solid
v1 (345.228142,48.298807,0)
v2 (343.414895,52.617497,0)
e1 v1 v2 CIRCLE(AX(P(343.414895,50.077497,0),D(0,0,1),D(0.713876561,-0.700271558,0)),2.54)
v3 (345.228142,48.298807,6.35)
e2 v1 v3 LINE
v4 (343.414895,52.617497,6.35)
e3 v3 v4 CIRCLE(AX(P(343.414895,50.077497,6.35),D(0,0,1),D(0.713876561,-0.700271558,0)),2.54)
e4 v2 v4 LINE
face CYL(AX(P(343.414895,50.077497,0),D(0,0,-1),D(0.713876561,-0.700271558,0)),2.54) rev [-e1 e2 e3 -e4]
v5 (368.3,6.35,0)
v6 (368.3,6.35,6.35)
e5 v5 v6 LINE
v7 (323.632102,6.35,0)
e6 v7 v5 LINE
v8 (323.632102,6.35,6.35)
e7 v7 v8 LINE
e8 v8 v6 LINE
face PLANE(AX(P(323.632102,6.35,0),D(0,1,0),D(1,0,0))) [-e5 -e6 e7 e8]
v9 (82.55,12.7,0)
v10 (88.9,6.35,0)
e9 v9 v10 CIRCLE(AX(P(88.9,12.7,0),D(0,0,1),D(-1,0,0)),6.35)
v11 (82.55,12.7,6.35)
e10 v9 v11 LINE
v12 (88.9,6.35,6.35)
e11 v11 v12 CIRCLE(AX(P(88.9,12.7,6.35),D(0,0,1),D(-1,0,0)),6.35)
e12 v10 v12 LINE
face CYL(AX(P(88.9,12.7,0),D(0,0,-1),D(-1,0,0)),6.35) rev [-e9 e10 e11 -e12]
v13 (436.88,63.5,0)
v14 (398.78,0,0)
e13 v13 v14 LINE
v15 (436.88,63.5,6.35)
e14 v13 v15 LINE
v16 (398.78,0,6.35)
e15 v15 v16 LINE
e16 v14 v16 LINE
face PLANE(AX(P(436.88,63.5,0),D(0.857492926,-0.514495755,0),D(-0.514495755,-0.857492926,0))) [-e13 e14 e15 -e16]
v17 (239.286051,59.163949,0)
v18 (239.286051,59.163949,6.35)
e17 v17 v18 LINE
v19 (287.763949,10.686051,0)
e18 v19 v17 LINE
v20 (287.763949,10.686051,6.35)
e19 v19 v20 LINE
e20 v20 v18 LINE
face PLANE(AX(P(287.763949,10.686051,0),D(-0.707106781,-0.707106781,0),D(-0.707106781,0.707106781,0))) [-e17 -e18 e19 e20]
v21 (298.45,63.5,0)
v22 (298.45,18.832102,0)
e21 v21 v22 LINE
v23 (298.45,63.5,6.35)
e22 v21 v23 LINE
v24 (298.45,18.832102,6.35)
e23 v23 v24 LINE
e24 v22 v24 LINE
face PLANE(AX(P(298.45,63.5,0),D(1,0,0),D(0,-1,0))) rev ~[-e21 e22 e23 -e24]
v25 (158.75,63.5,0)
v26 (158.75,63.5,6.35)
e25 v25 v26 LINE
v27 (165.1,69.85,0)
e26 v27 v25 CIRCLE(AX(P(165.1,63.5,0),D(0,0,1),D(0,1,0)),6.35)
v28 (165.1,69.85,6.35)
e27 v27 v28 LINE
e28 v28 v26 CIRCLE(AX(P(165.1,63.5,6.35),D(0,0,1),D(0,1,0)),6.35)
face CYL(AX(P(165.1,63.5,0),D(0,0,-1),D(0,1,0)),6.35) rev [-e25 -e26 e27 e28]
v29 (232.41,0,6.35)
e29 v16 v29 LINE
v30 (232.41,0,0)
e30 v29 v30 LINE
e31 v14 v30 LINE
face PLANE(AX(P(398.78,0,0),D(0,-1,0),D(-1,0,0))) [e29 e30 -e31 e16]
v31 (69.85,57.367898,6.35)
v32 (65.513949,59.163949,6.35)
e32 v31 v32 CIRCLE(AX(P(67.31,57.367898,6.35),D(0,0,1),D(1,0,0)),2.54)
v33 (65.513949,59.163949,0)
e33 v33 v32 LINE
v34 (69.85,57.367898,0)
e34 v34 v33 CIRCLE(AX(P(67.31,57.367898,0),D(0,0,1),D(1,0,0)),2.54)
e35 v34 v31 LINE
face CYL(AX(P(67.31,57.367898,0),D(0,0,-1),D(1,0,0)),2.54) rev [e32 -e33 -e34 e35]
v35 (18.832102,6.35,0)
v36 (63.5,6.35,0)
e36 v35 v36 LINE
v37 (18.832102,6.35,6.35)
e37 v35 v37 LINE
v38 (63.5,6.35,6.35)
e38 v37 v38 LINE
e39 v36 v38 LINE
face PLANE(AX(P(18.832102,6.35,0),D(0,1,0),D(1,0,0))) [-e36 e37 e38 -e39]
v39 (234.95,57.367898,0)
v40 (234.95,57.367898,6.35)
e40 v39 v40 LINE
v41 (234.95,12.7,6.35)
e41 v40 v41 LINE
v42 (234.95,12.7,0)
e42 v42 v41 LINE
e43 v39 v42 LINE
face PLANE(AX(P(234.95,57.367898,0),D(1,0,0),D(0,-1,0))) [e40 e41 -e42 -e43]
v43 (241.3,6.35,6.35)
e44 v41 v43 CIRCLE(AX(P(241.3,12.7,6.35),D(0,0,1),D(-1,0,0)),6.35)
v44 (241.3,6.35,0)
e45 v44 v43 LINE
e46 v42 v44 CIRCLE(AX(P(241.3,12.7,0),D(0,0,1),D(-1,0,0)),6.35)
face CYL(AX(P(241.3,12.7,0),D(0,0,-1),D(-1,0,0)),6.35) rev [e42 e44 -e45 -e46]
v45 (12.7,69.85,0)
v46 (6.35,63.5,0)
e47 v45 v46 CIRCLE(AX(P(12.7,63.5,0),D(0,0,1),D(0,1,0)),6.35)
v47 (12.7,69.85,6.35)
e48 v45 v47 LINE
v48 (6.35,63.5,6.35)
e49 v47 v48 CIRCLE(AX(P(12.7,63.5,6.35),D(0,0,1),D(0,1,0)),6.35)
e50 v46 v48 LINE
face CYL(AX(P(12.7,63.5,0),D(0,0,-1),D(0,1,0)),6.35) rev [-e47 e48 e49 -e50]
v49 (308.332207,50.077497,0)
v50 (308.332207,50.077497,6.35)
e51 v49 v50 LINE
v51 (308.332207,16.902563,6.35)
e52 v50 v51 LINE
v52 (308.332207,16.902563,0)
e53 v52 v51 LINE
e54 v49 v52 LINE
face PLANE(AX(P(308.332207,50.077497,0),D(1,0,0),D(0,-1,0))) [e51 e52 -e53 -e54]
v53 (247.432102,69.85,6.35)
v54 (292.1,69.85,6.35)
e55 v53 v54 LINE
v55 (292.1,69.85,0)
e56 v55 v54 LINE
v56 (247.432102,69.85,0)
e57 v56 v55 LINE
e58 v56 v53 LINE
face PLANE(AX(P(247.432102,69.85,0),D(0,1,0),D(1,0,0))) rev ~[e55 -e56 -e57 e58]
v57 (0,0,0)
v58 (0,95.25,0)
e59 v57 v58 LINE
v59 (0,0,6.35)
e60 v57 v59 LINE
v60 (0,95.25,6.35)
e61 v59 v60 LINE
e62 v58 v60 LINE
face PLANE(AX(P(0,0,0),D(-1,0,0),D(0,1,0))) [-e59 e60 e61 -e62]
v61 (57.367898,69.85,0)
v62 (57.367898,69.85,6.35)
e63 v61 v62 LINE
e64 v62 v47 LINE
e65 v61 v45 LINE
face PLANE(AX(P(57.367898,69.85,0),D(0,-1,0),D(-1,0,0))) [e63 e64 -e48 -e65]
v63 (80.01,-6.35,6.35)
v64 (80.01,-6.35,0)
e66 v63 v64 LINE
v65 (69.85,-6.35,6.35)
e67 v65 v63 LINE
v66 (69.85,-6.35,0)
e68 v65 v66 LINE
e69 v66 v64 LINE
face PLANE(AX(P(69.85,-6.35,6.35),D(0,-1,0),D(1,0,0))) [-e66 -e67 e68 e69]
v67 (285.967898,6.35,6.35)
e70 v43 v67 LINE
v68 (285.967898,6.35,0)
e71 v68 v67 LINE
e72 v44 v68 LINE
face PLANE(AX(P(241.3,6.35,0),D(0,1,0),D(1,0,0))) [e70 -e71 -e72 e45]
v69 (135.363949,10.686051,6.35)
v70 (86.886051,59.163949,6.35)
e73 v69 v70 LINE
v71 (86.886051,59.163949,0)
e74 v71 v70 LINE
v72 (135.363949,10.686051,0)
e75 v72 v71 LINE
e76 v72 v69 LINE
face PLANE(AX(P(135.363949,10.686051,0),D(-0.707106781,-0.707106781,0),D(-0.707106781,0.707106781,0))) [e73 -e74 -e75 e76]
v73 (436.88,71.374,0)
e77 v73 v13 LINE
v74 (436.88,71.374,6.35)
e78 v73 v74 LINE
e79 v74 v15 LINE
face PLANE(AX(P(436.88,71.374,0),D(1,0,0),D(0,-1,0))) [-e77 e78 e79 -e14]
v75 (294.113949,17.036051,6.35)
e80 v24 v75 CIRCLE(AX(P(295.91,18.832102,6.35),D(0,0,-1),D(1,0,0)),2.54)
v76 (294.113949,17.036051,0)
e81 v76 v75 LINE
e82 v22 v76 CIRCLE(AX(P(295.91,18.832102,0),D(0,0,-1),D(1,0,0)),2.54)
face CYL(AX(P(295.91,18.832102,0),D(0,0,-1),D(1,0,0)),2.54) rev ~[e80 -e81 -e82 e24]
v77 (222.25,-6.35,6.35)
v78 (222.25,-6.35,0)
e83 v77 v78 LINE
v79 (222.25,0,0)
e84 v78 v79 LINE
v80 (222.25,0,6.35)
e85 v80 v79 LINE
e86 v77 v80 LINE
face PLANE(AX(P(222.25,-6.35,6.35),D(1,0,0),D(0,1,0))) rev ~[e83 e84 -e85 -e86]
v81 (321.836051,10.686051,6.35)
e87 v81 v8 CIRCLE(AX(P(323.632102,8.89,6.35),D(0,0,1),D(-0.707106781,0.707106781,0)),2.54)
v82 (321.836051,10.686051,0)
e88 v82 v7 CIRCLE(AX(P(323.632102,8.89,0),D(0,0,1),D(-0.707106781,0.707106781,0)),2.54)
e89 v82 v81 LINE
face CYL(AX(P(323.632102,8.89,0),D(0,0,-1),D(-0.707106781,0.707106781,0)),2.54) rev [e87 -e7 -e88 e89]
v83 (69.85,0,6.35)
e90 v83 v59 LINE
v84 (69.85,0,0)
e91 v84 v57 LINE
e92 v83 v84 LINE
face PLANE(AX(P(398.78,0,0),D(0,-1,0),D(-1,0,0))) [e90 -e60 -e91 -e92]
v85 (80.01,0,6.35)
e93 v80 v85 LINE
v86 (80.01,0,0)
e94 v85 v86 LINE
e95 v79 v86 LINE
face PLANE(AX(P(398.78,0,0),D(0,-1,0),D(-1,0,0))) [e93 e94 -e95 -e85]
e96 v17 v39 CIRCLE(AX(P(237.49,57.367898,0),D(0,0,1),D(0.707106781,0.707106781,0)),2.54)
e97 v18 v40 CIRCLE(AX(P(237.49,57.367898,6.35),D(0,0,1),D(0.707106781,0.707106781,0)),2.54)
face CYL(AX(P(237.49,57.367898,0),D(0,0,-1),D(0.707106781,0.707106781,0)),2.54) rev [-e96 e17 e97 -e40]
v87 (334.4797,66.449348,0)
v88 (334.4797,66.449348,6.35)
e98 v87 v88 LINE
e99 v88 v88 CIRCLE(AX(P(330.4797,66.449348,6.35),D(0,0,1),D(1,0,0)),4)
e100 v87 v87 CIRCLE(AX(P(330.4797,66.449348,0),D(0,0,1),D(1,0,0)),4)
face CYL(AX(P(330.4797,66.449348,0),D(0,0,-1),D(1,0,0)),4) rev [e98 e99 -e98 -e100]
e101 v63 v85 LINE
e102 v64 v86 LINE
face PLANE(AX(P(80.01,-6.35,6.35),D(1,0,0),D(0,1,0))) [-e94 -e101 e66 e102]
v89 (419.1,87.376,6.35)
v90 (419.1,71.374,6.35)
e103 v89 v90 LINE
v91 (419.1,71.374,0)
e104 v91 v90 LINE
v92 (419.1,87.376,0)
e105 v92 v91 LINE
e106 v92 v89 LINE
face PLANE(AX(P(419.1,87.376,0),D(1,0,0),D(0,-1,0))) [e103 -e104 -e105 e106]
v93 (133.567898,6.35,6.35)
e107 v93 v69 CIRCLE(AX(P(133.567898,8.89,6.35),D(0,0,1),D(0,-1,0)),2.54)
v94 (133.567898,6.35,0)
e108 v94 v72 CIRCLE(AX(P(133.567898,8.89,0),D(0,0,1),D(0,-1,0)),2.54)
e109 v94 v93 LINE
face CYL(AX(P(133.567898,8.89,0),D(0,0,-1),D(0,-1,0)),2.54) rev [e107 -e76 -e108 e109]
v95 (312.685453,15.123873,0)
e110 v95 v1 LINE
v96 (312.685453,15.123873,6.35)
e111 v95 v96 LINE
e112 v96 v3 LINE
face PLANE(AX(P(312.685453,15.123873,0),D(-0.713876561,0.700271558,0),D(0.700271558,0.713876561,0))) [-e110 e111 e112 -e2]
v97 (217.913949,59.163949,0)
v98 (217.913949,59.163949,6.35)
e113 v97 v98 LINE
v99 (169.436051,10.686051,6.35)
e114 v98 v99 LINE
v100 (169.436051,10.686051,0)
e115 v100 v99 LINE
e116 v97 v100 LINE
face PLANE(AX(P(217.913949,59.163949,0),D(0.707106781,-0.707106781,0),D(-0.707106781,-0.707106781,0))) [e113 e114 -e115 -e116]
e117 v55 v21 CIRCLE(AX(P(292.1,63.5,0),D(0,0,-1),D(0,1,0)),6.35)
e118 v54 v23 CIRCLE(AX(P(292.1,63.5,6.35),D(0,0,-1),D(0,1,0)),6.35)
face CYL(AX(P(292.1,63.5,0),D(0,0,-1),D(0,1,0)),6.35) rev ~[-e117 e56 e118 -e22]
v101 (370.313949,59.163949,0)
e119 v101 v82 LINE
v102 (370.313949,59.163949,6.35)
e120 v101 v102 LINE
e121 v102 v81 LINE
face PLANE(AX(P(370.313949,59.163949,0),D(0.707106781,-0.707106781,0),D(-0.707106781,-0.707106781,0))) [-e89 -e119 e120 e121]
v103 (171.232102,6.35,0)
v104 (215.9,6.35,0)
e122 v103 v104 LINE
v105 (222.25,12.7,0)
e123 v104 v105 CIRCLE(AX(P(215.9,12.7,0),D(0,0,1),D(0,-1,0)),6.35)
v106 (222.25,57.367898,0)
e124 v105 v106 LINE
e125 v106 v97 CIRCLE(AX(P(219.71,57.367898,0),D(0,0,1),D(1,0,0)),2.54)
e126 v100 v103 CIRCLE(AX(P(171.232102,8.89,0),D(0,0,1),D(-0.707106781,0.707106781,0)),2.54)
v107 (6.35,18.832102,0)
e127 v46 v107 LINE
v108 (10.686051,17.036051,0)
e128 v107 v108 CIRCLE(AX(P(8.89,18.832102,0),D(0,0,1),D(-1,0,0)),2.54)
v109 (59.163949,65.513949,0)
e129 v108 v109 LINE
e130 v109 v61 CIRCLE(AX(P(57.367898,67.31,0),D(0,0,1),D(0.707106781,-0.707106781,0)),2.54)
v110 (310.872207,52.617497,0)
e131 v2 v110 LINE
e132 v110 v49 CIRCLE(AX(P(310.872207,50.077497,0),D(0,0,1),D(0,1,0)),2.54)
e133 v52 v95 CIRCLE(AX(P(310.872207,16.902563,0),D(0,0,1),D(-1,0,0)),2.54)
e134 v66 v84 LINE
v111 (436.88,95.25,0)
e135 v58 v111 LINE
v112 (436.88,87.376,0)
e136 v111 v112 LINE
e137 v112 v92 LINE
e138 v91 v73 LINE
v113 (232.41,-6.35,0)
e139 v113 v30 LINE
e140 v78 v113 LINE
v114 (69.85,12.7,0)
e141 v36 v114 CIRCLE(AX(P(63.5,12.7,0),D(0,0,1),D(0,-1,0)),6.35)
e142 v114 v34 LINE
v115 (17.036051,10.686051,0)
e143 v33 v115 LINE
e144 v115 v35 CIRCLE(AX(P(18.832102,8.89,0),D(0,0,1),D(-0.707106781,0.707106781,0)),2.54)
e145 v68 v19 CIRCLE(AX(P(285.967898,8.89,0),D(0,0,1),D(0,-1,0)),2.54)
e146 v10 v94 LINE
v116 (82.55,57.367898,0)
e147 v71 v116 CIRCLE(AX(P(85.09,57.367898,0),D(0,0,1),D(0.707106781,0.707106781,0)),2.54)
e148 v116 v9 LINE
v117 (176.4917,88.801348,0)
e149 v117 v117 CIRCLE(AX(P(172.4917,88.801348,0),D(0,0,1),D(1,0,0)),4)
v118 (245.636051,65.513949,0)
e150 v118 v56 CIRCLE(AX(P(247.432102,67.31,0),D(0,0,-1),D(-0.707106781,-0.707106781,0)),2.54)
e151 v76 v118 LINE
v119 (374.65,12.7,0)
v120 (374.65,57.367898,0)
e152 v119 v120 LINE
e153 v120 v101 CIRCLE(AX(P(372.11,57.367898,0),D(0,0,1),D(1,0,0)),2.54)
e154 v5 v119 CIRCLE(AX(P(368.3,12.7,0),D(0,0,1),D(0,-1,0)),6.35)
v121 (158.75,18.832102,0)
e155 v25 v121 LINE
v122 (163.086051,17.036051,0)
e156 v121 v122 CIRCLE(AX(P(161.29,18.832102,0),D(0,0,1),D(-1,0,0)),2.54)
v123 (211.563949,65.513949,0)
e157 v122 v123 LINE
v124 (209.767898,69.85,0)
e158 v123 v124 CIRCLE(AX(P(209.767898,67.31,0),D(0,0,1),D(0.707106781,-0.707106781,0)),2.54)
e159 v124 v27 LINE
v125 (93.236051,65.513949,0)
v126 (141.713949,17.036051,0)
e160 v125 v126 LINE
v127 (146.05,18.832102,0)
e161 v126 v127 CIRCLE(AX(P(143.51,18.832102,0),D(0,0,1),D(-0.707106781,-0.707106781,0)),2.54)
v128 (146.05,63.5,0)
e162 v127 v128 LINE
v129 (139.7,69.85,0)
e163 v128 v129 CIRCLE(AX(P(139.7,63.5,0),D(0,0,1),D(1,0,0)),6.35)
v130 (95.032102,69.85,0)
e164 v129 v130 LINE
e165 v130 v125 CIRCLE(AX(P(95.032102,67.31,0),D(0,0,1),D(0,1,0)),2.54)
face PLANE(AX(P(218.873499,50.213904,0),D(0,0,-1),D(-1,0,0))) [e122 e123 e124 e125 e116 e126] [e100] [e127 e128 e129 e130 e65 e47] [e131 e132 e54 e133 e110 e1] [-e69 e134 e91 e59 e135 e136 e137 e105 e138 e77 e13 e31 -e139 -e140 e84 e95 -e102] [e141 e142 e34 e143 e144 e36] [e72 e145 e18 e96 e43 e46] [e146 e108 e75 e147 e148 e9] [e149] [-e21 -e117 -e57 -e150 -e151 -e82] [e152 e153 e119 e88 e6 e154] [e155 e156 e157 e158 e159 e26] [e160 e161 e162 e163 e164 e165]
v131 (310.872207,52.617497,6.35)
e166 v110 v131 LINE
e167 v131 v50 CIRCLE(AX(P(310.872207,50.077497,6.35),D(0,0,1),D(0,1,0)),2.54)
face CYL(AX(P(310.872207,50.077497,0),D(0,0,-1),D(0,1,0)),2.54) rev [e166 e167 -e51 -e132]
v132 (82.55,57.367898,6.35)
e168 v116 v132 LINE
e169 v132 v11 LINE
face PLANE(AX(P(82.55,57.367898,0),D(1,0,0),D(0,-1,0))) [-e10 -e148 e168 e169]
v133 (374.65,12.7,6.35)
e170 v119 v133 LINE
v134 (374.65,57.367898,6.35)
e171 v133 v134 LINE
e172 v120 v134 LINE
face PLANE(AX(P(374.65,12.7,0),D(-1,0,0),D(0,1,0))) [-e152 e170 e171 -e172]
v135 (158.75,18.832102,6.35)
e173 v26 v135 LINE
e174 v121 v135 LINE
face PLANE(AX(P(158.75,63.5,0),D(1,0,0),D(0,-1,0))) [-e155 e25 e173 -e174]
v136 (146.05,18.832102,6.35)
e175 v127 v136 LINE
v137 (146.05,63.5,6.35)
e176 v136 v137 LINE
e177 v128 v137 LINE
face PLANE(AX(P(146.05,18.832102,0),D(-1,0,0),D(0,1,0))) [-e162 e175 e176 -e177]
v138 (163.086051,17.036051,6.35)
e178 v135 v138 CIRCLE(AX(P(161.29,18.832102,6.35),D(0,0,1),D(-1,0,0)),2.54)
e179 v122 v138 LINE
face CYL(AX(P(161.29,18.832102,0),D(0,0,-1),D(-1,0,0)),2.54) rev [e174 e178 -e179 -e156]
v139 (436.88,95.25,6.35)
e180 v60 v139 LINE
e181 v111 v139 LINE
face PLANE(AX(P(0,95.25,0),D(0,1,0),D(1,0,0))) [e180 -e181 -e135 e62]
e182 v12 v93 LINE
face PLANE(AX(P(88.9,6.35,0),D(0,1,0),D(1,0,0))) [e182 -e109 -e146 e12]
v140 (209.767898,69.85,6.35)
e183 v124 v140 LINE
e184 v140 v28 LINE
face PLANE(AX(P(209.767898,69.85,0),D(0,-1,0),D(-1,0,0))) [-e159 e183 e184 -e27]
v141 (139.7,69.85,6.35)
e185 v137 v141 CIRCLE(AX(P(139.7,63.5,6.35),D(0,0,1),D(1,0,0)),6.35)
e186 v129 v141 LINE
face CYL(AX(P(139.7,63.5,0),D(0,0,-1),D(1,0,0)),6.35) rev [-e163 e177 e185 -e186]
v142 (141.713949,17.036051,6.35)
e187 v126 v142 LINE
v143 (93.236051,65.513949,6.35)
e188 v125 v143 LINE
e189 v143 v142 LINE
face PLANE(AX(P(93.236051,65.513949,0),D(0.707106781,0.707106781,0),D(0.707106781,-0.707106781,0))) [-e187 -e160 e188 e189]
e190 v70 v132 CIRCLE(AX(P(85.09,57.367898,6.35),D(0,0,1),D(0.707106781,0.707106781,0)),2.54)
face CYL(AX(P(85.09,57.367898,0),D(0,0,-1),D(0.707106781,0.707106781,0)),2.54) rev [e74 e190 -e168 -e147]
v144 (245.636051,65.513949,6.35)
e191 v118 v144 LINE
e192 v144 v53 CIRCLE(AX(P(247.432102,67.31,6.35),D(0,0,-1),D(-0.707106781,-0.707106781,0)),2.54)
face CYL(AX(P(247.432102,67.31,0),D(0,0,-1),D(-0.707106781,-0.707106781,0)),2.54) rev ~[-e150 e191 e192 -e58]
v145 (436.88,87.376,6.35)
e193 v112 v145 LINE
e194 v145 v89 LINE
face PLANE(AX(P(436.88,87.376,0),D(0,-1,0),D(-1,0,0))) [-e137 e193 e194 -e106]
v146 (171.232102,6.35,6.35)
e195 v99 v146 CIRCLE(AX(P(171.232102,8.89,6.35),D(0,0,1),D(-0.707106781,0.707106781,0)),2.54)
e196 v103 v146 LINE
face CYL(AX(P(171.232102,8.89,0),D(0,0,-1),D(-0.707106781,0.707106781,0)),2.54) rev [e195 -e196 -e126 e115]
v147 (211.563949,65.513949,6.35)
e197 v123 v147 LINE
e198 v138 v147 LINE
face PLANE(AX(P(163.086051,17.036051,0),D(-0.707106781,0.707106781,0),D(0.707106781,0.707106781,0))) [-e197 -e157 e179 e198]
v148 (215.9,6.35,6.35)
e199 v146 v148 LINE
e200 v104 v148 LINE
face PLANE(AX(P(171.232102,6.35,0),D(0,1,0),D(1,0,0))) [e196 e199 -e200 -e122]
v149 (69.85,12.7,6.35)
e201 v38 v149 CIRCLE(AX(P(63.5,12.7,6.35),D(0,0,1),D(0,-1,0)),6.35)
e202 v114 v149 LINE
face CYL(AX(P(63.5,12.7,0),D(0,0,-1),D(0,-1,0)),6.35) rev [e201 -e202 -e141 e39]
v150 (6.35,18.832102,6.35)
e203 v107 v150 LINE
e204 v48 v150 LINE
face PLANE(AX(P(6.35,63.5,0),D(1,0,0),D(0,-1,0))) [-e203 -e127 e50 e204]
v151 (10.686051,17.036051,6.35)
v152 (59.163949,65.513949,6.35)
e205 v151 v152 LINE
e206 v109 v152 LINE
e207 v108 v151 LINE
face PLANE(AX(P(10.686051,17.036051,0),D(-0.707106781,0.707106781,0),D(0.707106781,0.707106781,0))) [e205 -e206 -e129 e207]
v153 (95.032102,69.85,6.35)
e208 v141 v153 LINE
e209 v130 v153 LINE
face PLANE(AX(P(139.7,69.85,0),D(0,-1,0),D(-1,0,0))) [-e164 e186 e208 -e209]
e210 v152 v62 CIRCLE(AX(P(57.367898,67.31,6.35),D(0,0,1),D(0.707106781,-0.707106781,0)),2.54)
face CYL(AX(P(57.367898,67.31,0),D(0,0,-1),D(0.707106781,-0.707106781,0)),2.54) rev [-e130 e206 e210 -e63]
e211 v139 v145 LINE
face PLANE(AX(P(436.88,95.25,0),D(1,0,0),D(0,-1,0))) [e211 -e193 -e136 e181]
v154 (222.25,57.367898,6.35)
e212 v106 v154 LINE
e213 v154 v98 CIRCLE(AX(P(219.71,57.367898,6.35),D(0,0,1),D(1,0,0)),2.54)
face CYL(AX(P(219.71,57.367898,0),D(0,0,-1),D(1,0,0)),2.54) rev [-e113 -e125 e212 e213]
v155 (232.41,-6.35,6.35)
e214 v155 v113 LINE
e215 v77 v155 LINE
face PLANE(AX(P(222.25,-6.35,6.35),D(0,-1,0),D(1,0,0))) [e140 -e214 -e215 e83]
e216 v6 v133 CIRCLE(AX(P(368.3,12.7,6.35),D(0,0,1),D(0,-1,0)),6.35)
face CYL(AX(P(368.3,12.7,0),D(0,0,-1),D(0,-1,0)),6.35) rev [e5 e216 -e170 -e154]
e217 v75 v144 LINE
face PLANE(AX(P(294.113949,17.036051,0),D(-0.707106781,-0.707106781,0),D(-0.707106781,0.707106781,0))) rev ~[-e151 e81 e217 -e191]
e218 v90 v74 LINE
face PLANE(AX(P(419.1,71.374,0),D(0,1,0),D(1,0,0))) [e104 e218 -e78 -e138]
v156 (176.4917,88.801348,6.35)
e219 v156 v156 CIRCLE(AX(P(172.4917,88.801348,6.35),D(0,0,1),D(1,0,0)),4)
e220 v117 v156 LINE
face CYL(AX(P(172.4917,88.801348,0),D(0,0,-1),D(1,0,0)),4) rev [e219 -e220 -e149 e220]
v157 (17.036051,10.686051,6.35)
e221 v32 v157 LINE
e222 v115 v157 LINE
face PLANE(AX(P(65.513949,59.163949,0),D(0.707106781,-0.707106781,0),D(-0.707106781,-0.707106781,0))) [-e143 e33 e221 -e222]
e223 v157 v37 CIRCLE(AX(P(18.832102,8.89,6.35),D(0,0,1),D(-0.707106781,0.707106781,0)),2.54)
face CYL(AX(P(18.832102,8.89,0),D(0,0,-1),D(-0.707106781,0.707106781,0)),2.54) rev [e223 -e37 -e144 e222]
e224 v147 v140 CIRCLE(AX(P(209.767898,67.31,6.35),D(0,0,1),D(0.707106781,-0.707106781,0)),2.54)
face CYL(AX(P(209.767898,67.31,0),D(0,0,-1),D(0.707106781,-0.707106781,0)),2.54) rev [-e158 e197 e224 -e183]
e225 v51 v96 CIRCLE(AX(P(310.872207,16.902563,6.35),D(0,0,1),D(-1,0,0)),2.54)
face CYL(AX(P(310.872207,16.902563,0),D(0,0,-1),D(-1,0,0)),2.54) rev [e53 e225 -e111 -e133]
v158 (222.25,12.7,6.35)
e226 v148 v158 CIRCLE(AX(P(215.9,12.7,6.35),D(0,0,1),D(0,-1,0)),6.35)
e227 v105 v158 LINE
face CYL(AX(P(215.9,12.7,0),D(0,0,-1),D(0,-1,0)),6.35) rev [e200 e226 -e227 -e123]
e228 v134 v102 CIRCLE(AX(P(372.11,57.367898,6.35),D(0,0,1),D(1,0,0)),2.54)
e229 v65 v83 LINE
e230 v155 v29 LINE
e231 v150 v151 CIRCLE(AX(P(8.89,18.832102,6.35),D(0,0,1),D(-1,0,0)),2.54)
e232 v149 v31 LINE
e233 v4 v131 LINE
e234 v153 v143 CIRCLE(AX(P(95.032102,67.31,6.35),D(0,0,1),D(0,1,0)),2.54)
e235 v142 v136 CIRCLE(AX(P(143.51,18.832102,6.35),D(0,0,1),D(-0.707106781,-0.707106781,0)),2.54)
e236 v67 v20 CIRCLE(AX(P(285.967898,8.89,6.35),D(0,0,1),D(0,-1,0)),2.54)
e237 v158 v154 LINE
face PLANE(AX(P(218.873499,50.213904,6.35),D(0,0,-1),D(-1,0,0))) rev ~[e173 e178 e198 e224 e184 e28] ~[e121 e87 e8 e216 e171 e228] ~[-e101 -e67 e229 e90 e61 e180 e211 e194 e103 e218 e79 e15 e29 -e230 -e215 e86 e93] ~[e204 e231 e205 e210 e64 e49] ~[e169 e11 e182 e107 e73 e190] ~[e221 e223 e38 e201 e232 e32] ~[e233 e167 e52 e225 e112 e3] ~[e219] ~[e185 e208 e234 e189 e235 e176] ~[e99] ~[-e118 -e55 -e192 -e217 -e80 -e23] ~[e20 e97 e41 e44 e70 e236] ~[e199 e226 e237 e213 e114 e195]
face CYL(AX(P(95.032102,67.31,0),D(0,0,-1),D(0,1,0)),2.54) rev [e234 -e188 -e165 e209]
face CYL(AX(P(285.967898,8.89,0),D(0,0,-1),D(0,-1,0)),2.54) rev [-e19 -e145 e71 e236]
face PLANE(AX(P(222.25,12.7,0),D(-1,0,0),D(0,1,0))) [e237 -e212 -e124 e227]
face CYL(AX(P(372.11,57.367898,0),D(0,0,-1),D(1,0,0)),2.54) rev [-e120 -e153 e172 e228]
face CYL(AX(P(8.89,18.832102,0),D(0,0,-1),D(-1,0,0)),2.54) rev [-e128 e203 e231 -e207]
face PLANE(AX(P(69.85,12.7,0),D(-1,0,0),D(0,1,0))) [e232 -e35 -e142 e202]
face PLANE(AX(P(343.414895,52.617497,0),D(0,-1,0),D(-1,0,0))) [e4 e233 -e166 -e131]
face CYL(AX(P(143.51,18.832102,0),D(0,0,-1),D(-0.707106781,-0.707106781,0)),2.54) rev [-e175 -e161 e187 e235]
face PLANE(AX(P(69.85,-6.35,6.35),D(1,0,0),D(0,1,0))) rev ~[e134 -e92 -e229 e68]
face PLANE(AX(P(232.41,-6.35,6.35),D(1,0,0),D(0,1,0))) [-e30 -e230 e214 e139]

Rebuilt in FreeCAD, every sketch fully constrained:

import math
import FreeCAD as App
import Part
import Sketcher
from FreeCAD import Vector
Q = App.Units.Quantity

doc = App.newDocument("Part")
body = doc.addObject("PartDesign::Body", "Body")

# Sketch on XY plane
sketch1 = body.newObject("Sketcher::SketchObject", "Sketch")
sketch1.AttachmentSupport = (doc.getObject("XY_Plane"), [""])
sketch1.MapMode = "FlatFace"
sketch1.addGeometry(Part.LineSegment(Vector(419.1, 71.4, 0), Vector(419.1, 87.4, 0)), False)
sketch1.addGeometry(Part.LineSegment(Vector(419.1, 87.4, 0), Vector(436.9, 87.4, 0)), False)
sketch1.addGeometry(Part.LineSegment(Vector(436.9, 87.4, 0), Vector(436.9, 95.2, 0)), False)
sketch1.addGeometry(Part.LineSegment(Vector(436.9, 95.2, 0), Vector(0, 95.2, 0)), False)
sketch1.addGeometry(Part.LineSegment(Vector(0, 95.2, 0), Vector(0, 0, 0)), False)
sketch1.addGeometry(Part.LineSegment(Vector(0, 0, 0), Vector(398.8, 0, 0)), False)
sketch1.addGeometry(Part.LineSegment(Vector(398.8, 0, 0), Vector(436.9, 63.5, 0)), False)
sketch1.addGeometry(Part.LineSegment(Vector(436.9, 63.5, 0), Vector(436.9, 71.4, 0)), False)
sketch1.addGeometry(Part.LineSegment(Vector(436.9, 71.4, 0), Vector(419.1, 71.4, 0)), False)
sketch1.addGeometry(Part.ArcOfCircle(Part.Circle(Vector(323.6, 8.9, 0), Vector(0, 0, 1), 2.5), math.radians(135), math.radians(270)), False)
sketch1.addGeometry(Part.LineSegment(Vector(321.8, 10.7, 0), Vector(370.3, 59.2, 0)), False)
sketch1.addGeometry(Part.ArcOfCircle(Part.Circle(Vector(372.1, 57.4, 0), Vector(0, 0, 1), 2.5), math.radians(0), math.radians(135)), False)
sketch1.addGeometry(Part.LineSegment(Vector(374.6, 57.4, 0), Vector(374.6, 12.7, 0)), False)
sketch1.addGeometry(Part.ArcOfCircle(Part.Circle(Vector(368.3, 12.7, 0), Vector(0, 0, 1), 6.3), math.radians(-90), math.radians(0)), False)
sketch1.addGeometry(Part.LineSegment(Vector(368.3, 6.3, 0), Vector(323.6, 6.3, 0)), False)
sketch1.addGeometry(Part.ArcOfCircle(Part.Circle(Vector(310.9, 16.9, 0), Vector(0, 0, 1), 2.5), math.radians(-180), math.radians(-44)), False)
sketch1.addGeometry(Part.LineSegment(Vector(308.3, 16.9, 0), Vector(308.3, 50.1, 0)), False)
sketch1.addGeometry(Part.ArcOfCircle(Part.Circle(Vector(310.9, 50.1, 0), Vector(0, 0, 1), 2.5), math.radians(90), math.radians(180)), False)
sketch1.addGeometry(Part.LineSegment(Vector(310.9, 52.6, 0), Vector(343.4, 52.6, 0)), False)
sketch1.addGeometry(Part.ArcOfCircle(Part.Circle(Vector(343.4, 50.1, 0), Vector(0, 0, 1), 2.5), math.radians(-44), math.radians(90)), False)
sketch1.addGeometry(Part.LineSegment(Vector(345.2, 48.3, 0), Vector(312.7, 15.1, 0)), False)
sketch1.addGeometry(Part.ArcOfCircle(Part.Circle(Vector(237.5, 57.4, 0), Vector(0, 0, 1), 2.5), math.radians(45), math.radians(180)), False)
sketch1.addGeometry(Part.LineSegment(Vector(239.3, 59.2, 0), Vector(287.8, 10.7, 0)), False)
sketch1.addGeometry(Part.ArcOfCircle(Part.Circle(Vector(286, 8.9, 0), Vector(0, 0, 1), 2.5), math.radians(-90), math.radians(45)), False)
sketch1.addGeometry(Part.LineSegment(Vector(286, 6.3, 0), Vector(241.3, 6.3, 0)), False)
sketch1.addGeometry(Part.ArcOfCircle(Part.Circle(Vector(241.3, 12.7, 0), Vector(0, 0, 1), 6.3), math.radians(180), math.radians(270)), False)
sketch1.addGeometry(Part.LineSegment(Vector(234.9, 12.7, 0), Vector(234.9, 57.4, 0)), False)
sketch1.addGeometry(Part.ArcOfCircle(Part.Circle(Vector(171.2, 8.9, 0), Vector(0, 0, 1), 2.5), math.radians(135), math.radians(270)), False)
sketch1.addGeometry(Part.LineSegment(Vector(169.4, 10.7, 0), Vector(217.9, 59.2, 0)), False)
sketch1.addGeometry(Part.ArcOfCircle(Part.Circle(Vector(219.7, 57.4, 0), Vector(0, 0, 1), 2.5), math.radians(0), math.radians(135)), False)
sketch1.addGeometry(Part.LineSegment(Vector(222.2, 57.4, 0), Vector(222.2, 12.7, 0)), False)
sketch1.addGeometry(Part.ArcOfCircle(Part.Circle(Vector(215.9, 12.7, 0), Vector(0, 0, 1), 6.3), math.radians(-90), math.radians(0)), False)
sketch1.addGeometry(Part.LineSegment(Vector(215.9, 6.3, 0), Vector(171.2, 6.3, 0)), False)
sketch1.addGeometry(Part.LineSegment(Vector(294.1, 17, 0), Vector(245.6, 65.5, 0)), False)
sketch1.addGeometry(Part.ArcOfCircle(Part.Circle(Vector(247.4, 67.3, 0), Vector(0, 0, 1), 2.5), math.radians(90), math.radians(225)), False)
sketch1.addGeometry(Part.LineSegment(Vector(247.4, 69.8, 0), Vector(292.1, 69.8, 0)), False)
sketch1.addGeometry(Part.ArcOfCircle(Part.Circle(Vector(292.1, 63.5, 0), Vector(0, 0, 1), 6.3), math.radians(0), math.radians(90)), False)
sketch1.addGeometry(Part.LineSegment(Vector(298.4, 63.5, 0), Vector(298.4, 18.8, 0)), False)
sketch1.addGeometry(Part.ArcOfCircle(Part.Circle(Vector(295.9, 18.8, 0), Vector(0, 0, 1), 2.5), math.radians(-135), math.radians(0)), False)
sketch1.addGeometry(Part.ArcOfCircle(Part.Circle(Vector(85.1, 57.4, 0), Vector(0, 0, 1), 2.5), math.radians(45), math.radians(180)), False)
sketch1.addGeometry(Part.LineSegment(Vector(86.9, 59.2, 0), Vector(135.4, 10.7, 0)), False)
sketch1.addGeometry(Part.ArcOfCircle(Part.Circle(Vector(133.6, 8.9, 0), Vector(0, 0, 1), 2.5), math.radians(-90), math.radians(45)), False)
sketch1.addGeometry(Part.LineSegment(Vector(133.6, 6.3, 0), Vector(88.9, 6.3, 0)), False)
sketch1.addGeometry(Part.ArcOfCircle(Part.Circle(Vector(88.9, 12.7, 0), Vector(0, 0, 1), 6.3), math.radians(180), math.radians(270)), False)
sketch1.addGeometry(Part.LineSegment(Vector(82.5, 12.7, 0), Vector(82.5, 57.4, 0)), False)
sketch1.addGeometry(Part.ArcOfCircle(Part.Circle(Vector(161.3, 18.8, 0), Vector(0, 0, 1), 2.5), math.radians(180), math.radians(315)), False)
sketch1.addGeometry(Part.LineSegment(Vector(158.8, 18.8, 0), Vector(158.8, 63.5, 0)), False)
sketch1.addGeometry(Part.ArcOfCircle(Part.Circle(Vector(165.1, 63.5, 0), Vector(0, 0, 1), 6.3), math.radians(90), math.radians(180)), False)
sketch1.addGeometry(Part.LineSegment(Vector(165.1, 69.8, 0), Vector(209.8, 69.8, 0)), False)
sketch1.addGeometry(Part.ArcOfCircle(Part.Circle(Vector(209.8, 67.3, 0), Vector(0, 0, 1), 2.5), math.radians(-45), math.radians(90)), False)
sketch1.addGeometry(Part.LineSegment(Vector(211.6, 65.5, 0), Vector(163.1, 17, 0)), False)
sketch1.addGeometry(Part.ArcOfCircle(Part.Circle(Vector(95, 67.3, 0), Vector(0, 0, 1), 2.5), math.radians(90), math.radians(225)), False)
sketch1.addGeometry(Part.LineSegment(Vector(95, 69.8, 0), Vector(139.7, 69.8, 0)), False)
sketch1.addGeometry(Part.ArcOfCircle(Part.Circle(Vector(139.7, 63.5, 0), Vector(0, 0, 1), 6.3), math.radians(0), math.radians(90)), False)
sketch1.addGeometry(Part.LineSegment(Vector(146.1, 63.5, 0), Vector(146.1, 18.8, 0)), False)
sketch1.addGeometry(Part.ArcOfCircle(Part.Circle(Vector(143.5, 18.8, 0), Vector(0, 0, 1), 2.5), math.radians(-135), math.radians(0)), False)
sketch1.addGeometry(Part.LineSegment(Vector(141.7, 17, 0), Vector(93.2, 65.5, 0)), False)
sketch1.addGeometry(Part.ArcOfCircle(Part.Circle(Vector(18.8, 8.9, 0), Vector(0, 0, 1), 2.5), math.radians(135), math.radians(270)), False)
sketch1.addGeometry(Part.LineSegment(Vector(17, 10.7, 0), Vector(65.5, 59.2, 0)), False)
sketch1.addGeometry(Part.ArcOfCircle(Part.Circle(Vector(67.3, 57.4, 0), Vector(0, 0, 1), 2.5), math.radians(0), math.radians(135)), False)
sketch1.addGeometry(Part.LineSegment(Vector(69.8, 57.4, 0), Vector(69.8, 12.7, 0)), False)
sketch1.addGeometry(Part.ArcOfCircle(Part.Circle(Vector(63.5, 12.7, 0), Vector(0, 0, 1), 6.3), math.radians(-90), math.radians(0)), False)
sketch1.addGeometry(Part.LineSegment(Vector(63.5, 6.3, 0), Vector(18.8, 6.3, 0)), False)
sketch1.addGeometry(Part.ArcOfCircle(Part.Circle(Vector(12.7, 63.5, 0), Vector(0, 0, 1), 6.3), math.radians(90), math.radians(180)), False)
sketch1.addGeometry(Part.LineSegment(Vector(12.7, 69.8, 0), Vector(57.4, 69.8, 0)), False)
sketch1.addGeometry(Part.ArcOfCircle(Part.Circle(Vector(57.4, 67.3, 0), Vector(0, 0, 1), 2.5), math.radians(-45), math.radians(90)), False)
sketch1.addGeometry(Part.LineSegment(Vector(59.2, 65.5, 0), Vector(10.7, 17, 0)), False)
sketch1.addGeometry(Part.ArcOfCircle(Part.Circle(Vector(8.9, 18.8, 0), Vector(0, 0, 1), 2.5), math.radians(180), math.radians(315)), False)
sketch1.addGeometry(Part.LineSegment(Vector(6.3, 18.8, 0), Vector(6.3, 63.5, 0)), False)
sketch1.addGeometry(Part.Circle(Vector(330.5, 66.4, 0), Vector(0, 0, 1), 4), False)
sketch1.addGeometry(Part.Circle(Vector(172.5, 88.8, 0), Vector(0, 0, 1), 4), False)
sketch1.addConstraint(Sketcher.Constraint("Coincident", 0, 2, 1, 1))
sketch1.addConstraint(Sketcher.Constraint("Coincident", 1, 2, 2, 1))
sketch1.addConstraint(Sketcher.Constraint("Coincident", 2, 2, 3, 1))
sketch1.addConstraint(Sketcher.Constraint("Coincident", 3, 2, 4, 1))
sketch1.addConstraint(Sketcher.Constraint("Coincident", 4, 2, 5, 1))
sketch1.addConstraint(Sketcher.Constraint("Coincident", 5, 2, 6, 1))
sketch1.addConstraint(Sketcher.Constraint("Coincident", 6, 2, 7, 1))
sketch1.addConstraint(Sketcher.Constraint("Coincident", 7, 2, 8, 1))
sketch1.addConstraint(Sketcher.Constraint("Coincident", 8, 2, 0, 1))
sketch1.addConstraint(Sketcher.Constraint("Tangent", 9, 1, 10, 1))
sketch1.addConstraint(Sketcher.Constraint("Tangent", 10, 2, 11, 2))
sketch1.addConstraint(Sketcher.Constraint("Tangent", 11, 1, 12, 1))
sketch1.addConstraint(Sketcher.Constraint("Tangent", 12, 2, 13, 2))
sketch1.addConstraint(Sketcher.Constraint("Tangent", 13, 1, 14, 1))
sketch1.addConstraint(Sketcher.Constraint("Tangent", 14, 2, 9, 2))
sketch1.addConstraint(Sketcher.Constraint("Tangent", 15, 1, 16, 1))
sketch1.addConstraint(Sketcher.Constraint("Tangent", 16, 2, 17, 2))
sketch1.addConstraint(Sketcher.Constraint("Tangent", 17, 1, 18, 1))
sketch1.addConstraint(Sketcher.Constraint("Tangent", 18, 2, 19, 2))
sketch1.addConstraint(Sketcher.Constraint("Tangent", 19, 1, 20, 1))
sketch1.addConstraint(Sketcher.Constraint("Tangent", 20, 2, 15, 2))
sketch1.addConstraint(Sketcher.Constraint("Tangent", 21, 1, 22, 1))
sketch1.addConstraint(Sketcher.Constraint("Tangent", 22, 2, 23, 2))
sketch1.addConstraint(Sketcher.Constraint("Tangent", 23, 1, 24, 1))
sketch1.addConstraint(Sketcher.Constraint("Tangent", 24, 2, 25, 2))
sketch1.addConstraint(Sketcher.Constraint("Tangent", 25, 1, 26, 1))
sketch1.addConstraint(Sketcher.Constraint("Tangent", 26, 2, 21, 2))
sketch1.addConstraint(Sketcher.Constraint("Tangent", 27, 1, 28, 1))
sketch1.addConstraint(Sketcher.Constraint("Tangent", 28, 2, 29, 2))
sketch1.addConstraint(Sketcher.Constraint("Tangent", 29, 1, 30, 1))
sketch1.addConstraint(Sketcher.Constraint("Tangent", 30, 2, 31, 2))
sketch1.addConstraint(Sketcher.Constraint("Tangent", 31, 1, 32, 1))
sketch1.addConstraint(Sketcher.Constraint("Tangent", 32, 2, 27, 2))
sketch1.addConstraint(Sketcher.Constraint("Tangent", 33, 2, 34, 2))
sketch1.addConstraint(Sketcher.Constraint("Tangent", 34, 1, 35, 1))
sketch1.addConstraint(Sketcher.Constraint("Tangent", 35, 2, 36, 2))
sketch1.addConstraint(Sketcher.Constraint("Tangent", 36, 1, 37, 1))
sketch1.addConstraint(Sketcher.Constraint("Tangent", 37, 2, 38, 2))
sketch1.addConstraint(Sketcher.Constraint("Tangent", 38, 1, 33, 1))
sketch1.addConstraint(Sketcher.Constraint("Tangent", 39, 1, 40, 1))
sketch1.addConstraint(Sketcher.Constraint("Tangent", 40, 2, 41, 2))
sketch1.addConstraint(Sketcher.Constraint("Tangent", 41, 1, 42, 1))
sketch1.addConstraint(Sketcher.Constraint("Tangent", 42, 2, 43, 2))
sketch1.addConstraint(Sketcher.Constraint("Tangent", 43, 1, 44, 1))
sketch1.addConstraint(Sketcher.Constraint("Tangent", 44, 2, 39, 2))
sketch1.addConstraint(Sketcher.Constraint("Tangent", 45, 1, 46, 1))
sketch1.addConstraint(Sketcher.Constraint("Tangent", 46, 2, 47, 2))
sketch1.addConstraint(Sketcher.Constraint("Tangent", 47, 1, 48, 1))
sketch1.addConstraint(Sketcher.Constraint("Tangent", 48, 2, 49, 2))
sketch1.addConstraint(Sketcher.Constraint("Tangent", 49, 1, 50, 1))
sketch1.addConstraint(Sketcher.Constraint("Tangent", 50, 2, 45, 2))
sketch1.addConstraint(Sketcher.Constraint("Tangent", 51, 1, 52, 1))
sketch1.addConstraint(Sketcher.Constraint("Tangent", 52, 2, 53, 2))
sketch1.addConstraint(Sketcher.Constraint("Tangent", 53, 1, 54, 1))
sketch1.addConstraint(Sketcher.Constraint("Tangent", 54, 2, 55, 2))
sketch1.addConstraint(Sketcher.Constraint("Tangent", 55, 1, 56, 1))
sketch1.addConstraint(Sketcher.Constraint("Tangent", 56, 2, 51, 2))
sketch1.addConstraint(Sketcher.Constraint("Tangent", 57, 1, 58, 1))
sketch1.addConstraint(Sketcher.Constraint("Tangent", 58, 2, 59, 2))
sketch1.addConstraint(Sketcher.Constraint("Tangent", 59, 1, 60, 1))
sketch1.addConstraint(Sketcher.Constraint("Tangent", 60, 2, 61, 2))
sketch1.addConstraint(Sketcher.Constraint("Tangent", 61, 1, 62, 1))
sketch1.addConstraint(Sketcher.Constraint("Tangent", 62, 2, 57, 2))
sketch1.addConstraint(Sketcher.Constraint("Tangent", 63, 1, 64, 1))
sketch1.addConstraint(Sketcher.Constraint("Tangent", 64, 2, 65, 2))
sketch1.addConstraint(Sketcher.Constraint("Tangent", 65, 1, 66, 1))
sketch1.addConstraint(Sketcher.Constraint("Tangent", 66, 2, 67, 2))
sketch1.addConstraint(Sketcher.Constraint("Tangent", 67, 1, 68, 1))
sketch1.addConstraint(Sketcher.Constraint("Tangent", 68, 2, 63, 2))
sketch1.addConstraint(Sketcher.Constraint("Vertical", 0))
sketch1.addConstraint(Sketcher.Constraint("Horizontal", 1))
sketch1.addConstraint(Sketcher.Constraint("Vertical", 2))
sketch1.addConstraint(Sketcher.Constraint("Horizontal", 3))
sketch1.addConstraint(Sketcher.Constraint("Vertical", 4))
sketch1.addConstraint(Sketcher.Constraint("Horizontal", 5))
sketch1.addConstraint(Sketcher.Constraint("Vertical", 7))
sketch1.addConstraint(Sketcher.Constraint("Horizontal", 8))
sketch1.addConstraint(Sketcher.Constraint("Vertical", 12))
sketch1.addConstraint(Sketcher.Constraint("Horizontal", 14))
sketch1.addConstraint(Sketcher.Constraint("Vertical", 16))
sketch1.addConstraint(Sketcher.Constraint("Horizontal", 18))
sketch1.addConstraint(Sketcher.Constraint("Horizontal", 24))
sketch1.addConstraint(Sketcher.Constraint("Vertical", 26))
sketch1.addConstraint(Sketcher.Constraint("Vertical", 30))
sketch1.addConstraint(Sketcher.Constraint("Horizontal", 32))
sketch1.addConstraint(Sketcher.Constraint("Horizontal", 35))
sketch1.addConstraint(Sketcher.Constraint("Vertical", 37))
sketch1.addConstraint(Sketcher.Constraint("Horizontal", 42))
sketch1.addConstraint(Sketcher.Constraint("Vertical", 44))
sketch1.addConstraint(Sketcher.Constraint("Vertical", 46))
sketch1.addConstraint(Sketcher.Constraint("Horizontal", 48))
sketch1.addConstraint(Sketcher.Constraint("Horizontal", 52))
sketch1.addConstraint(Sketcher.Constraint("Vertical", 54))
sketch1.addConstraint(Sketcher.Constraint("Vertical", 60))
sketch1.addConstraint(Sketcher.Constraint("Horizontal", 62))
sketch1.addConstraint(Sketcher.Constraint("Horizontal", 64))
sketch1.addConstraint(Sketcher.Constraint("Vertical", 68))
sketch1.addConstraint(Sketcher.Constraint("Coincident", 4, 2, -1, 1))
sketch1.addConstraint(Sketcher.Constraint("Equal", 9, 11))
sketch1.addConstraint(Sketcher.Constraint("Equal", 11, 15))
sketch1.addConstraint(Sketcher.Constraint("Equal", 15, 17))
sketch1.addConstraint(Sketcher.Constraint("Equal", 17, 19))
sketch1.addConstraint(Sketcher.Constraint("Equal", 19, 21))
sketch1.addConstraint(Sketcher.Constraint("Equal", 21, 23))
sketch1.addConstraint(Sketcher.Constraint("Equal", 13, 25))
sketch1.addConstraint(Sketcher.Constraint("Equal", 23, 27))
sketch1.addConstraint(Sketcher.Constraint("Equal", 27, 29))
sketch1.addConstraint(Sketcher.Constraint("Equal", 25, 31))
sketch1.addConstraint(Sketcher.Constraint("Equal", 29, 34))
sketch1.addConstraint(Sketcher.Constraint("Equal", 31, 36))
sketch1.addConstraint(Sketcher.Constraint("Equal", 34, 38))
sketch1.addConstraint(Sketcher.Constraint("Equal", 38, 39))
sketch1.addConstraint(Sketcher.Constraint("Equal", 39, 41))
sketch1.addConstraint(Sketcher.Constraint("Equal", 36, 43))
sketch1.addConstraint(Sketcher.Constraint("Equal", 41, 45))
sketch1.addConstraint(Sketcher.Constraint("Equal", 43, 47))
sketch1.addConstraint(Sketcher.Constraint("Equal", 45, 49))
sketch1.addConstraint(Sketcher.Constraint("Equal", 49, 51))
sketch1.addConstraint(Sketcher.Constraint("Equal", 47, 53))
sketch1.addConstraint(Sketcher.Constraint("Equal", 51, 55))
sketch1.addConstraint(Sketcher.Constraint("Equal", 55, 57))
sketch1.addConstraint(Sketcher.Constraint("Equal", 57, 59))
sketch1.addConstraint(Sketcher.Constraint("Equal", 53, 61))
sketch1.addConstraint(Sketcher.Constraint("Equal", 61, 63))
sketch1.addConstraint(Sketcher.Constraint("Equal", 59, 65))
sketch1.addConstraint(Sketcher.Constraint("Equal", 65, 67))
sketch1.addConstraint(Sketcher.Constraint("Equal", 69, 70))
sketch1.addConstraint(Sketcher.Constraint("Perpendicular", 10, 22))
sketch1.addConstraint(Sketcher.Constraint("Perpendicular", 22, 28))
sketch1.addConstraint(Sketcher.Constraint("Perpendicular", 28, 33))
sketch1.addConstraint(Sketcher.Constraint("Parallel", 33, 40))
sketch1.addConstraint(Sketcher.Constraint("Perpendicular", 40, 50))
sketch1.addConstraint(Sketcher.Constraint("Perpendicular", 50, 56))
sketch1.addConstraint(Sketcher.Constraint("Perpendicular", 56, 58))
sketch1.addConstraint(Sketcher.Constraint("Parallel", 58, 66))
sketch1.addConstraint(Sketcher.Constraint("Horizontal", 11, 3, 21, 3))
sketch1.addConstraint(Sketcher.Constraint("Horizontal", 9, 3, 23, 3))
sketch1.addConstraint(Sketcher.Constraint("Horizontal", 23, 3, 27, 3))
sketch1.addConstraint(Sketcher.Constraint("Horizontal", 21, 3, 29, 3))
sketch1.addConstraint(Sketcher.Constraint("Horizontal", 29, 3, 39, 3))
sketch1.addConstraint(Sketcher.Constraint("Horizontal", 27, 3, 41, 3))
sketch1.addConstraint(Sketcher.Constraint("Horizontal", 38, 3, 45, 3))
sketch1.addConstraint(Sketcher.Constraint("Horizontal", 36, 3, 47, 3))
sketch1.addConstraint(Sketcher.Constraint("Horizontal", 49, 3, 51, 3))
sketch1.addConstraint(Sketcher.Constraint("Horizontal", 45, 3, 55, 3))
sketch1.addConstraint(Sketcher.Constraint("Horizontal", 41, 3, 57, 3))
sketch1.addConstraint(Sketcher.Constraint("Horizontal", 39, 3, 59, 3))
sketch1.addConstraint(Sketcher.Constraint("Horizontal", 53, 3, 63, 3))
sketch1.addConstraint(Sketcher.Constraint("Horizontal", 55, 3, 67, 3))
sketch1.addConstraint(Sketcher.Constraint("Horizontal", 63, 3, 6, 2))
sketch1.addConstraint(Sketcher.Constraint("Horizontal", 10, 2, 21, 1))
sketch1.addConstraint(Sketcher.Constraint("Vertical", 2, 2, 6, 2))
sketch1.addConstraint(Sketcher.Constraint("Equal", 32, 35))
sketch1.addConstraint(Sketcher.Constraint("Equal", 2, 7))
sketch1.addConstraint(Sketcher.Constraint("Radius", 9, Q("0.1 in")))
sketch1.addConstraint(Sketcher.Constraint("Radius", 13, Q("0.25 in")))
sketch1.addConstraint(Sketcher.Constraint("DistanceX", 1, 1, 1, 2, Q("0.7 in")))
sketch1.addConstraint(Sketcher.Constraint("DistanceX", 3, 2, 3, 1, Q("17.2 in")))
sketch1.addConstraint(Sketcher.Constraint("DistanceX", 5, 1, 5, 2, Q("15.7 in")))
sketch1.addConstraint(Sketcher.Constraint("DistanceY", 0, 1, 0, 2, Q("0.63 in")))
sketch1.addConstraint(Sketcher.Constraint("DistanceY", 2, 1, 2, 2, Q("0.31 in")))
sketch1.addConstraint(Sketcher.Constraint("DistanceY", 4, 2, 4, 1, Q("3.75 in")))
sketch1.addConstraint(Sketcher.Constraint("DistanceX", -1, 1, 13, 3, Q("14.5 in")))
sketch1.addConstraint(Sketcher.Constraint("DistanceY", -1, 1, 13, 3, Q("0.5 in")))
sketch1.addConstraint(Sketcher.Constraint("DistanceX", -1, 1, 25, 3, Q("9.5 in")))
sketch1.addConstraint(Sketcher.Constraint("DistanceX", -1, 1, 31, 3, Q("8.5 in")))
sketch1.addConstraint(Sketcher.Constraint("DistanceX", -1, 1, 36, 3, Q("11.5 in")))
sketch1.addConstraint(Sketcher.Constraint("DistanceX", -1, 1, 43, 3, Q("3.5 in")))
sketch1.addConstraint(Sketcher.Constraint("DistanceX", -1, 1, 47, 3, Q("6.5 in")))
sketch1.addConstraint(Sketcher.Constraint("DistanceX", -1, 1, 53, 3, Q("5.5 in")))
sketch1.addConstraint(Sketcher.Constraint("DistanceX", -1, 1, 61, 3, Q("2.5 in")))
sketch1.addConstraint(Sketcher.Constraint("DistanceX", -1, 1, 63, 3, Q("0.5 in")))
sketch1.addConstraint(Sketcher.Constraint("Diameter", 69, Q("8 mm")))
sketch1.addConstraint(Sketcher.Constraint("Distance", 10, Q("68.5581 mm")))
sketch1.addConstraint(Sketcher.Constraint("DistanceX", 18, 1, 18, 2, Q("32.542688 mm")))
sketch1.addConstraint(Sketcher.Constraint("DistanceX", -1, 1, 69, 3, Q("330.4797 mm")))
sketch1.addConstraint(Sketcher.Constraint("DistanceX", -1, 1, 70, 3, Q("172.4917 mm")))
sketch1.addConstraint(Sketcher.Constraint("DistanceY", 16, 1, 16, 2, Q("33.174934 mm")))
sketch1.addConstraint(Sketcher.Constraint("DistanceX", -1, 1, 19, 1, Q("345.228142 mm")))
sketch1.addConstraint(Sketcher.Constraint("DistanceY", -1, 1, 15, 3, Q("16.902563 mm")))
sketch1.addConstraint(Sketcher.Constraint("DistanceY", -1, 1, 69, 3, Q("66.449348 mm")))
sketch1.addConstraint(Sketcher.Constraint("DistanceY", -1, 1, 70, 3, Q("88.801348 mm")))
pad1 = body.newObject("PartDesign::Pad", "Pad")
pad1.Profile = sketch1
pad1.Length = Q("0.25 in")

# Sketch on XY plane
sketch2 = body.newObject("Sketcher::SketchObject", "Sketch001")
sketch2.AttachmentSupport = (doc.getObject("XY_Plane"), [""])
sketch2.MapMode = "FlatFace"
sketch2.AttachmentOffset = App.Placement(Vector(0, 0, 0.25 * 25.4), App.Rotation())
sketch2.addGeometry(Part.LineSegment(Vector(70, 0, 0), Vector(70, -6, 0)), False)
sketch2.addGeometry(Part.LineSegment(Vector(70, -6, 0), Vector(80, -6, 0)), False)
sketch2.addGeometry(Part.LineSegment(Vector(80, -6, 0), Vector(80, 0, 0)), False)
sketch2.addGeometry(Part.LineSegment(Vector(80, 0, 0), Vector(70, 0, 0)), False)
sketch2.addGeometry(Part.LineSegment(Vector(222, 0, 0), Vector(222, -6, 0)), False)
sketch2.addGeometry(Part.LineSegment(Vector(222, -6, 0), Vector(232, -6, 0)), False)
sketch2.addGeometry(Part.LineSegment(Vector(232, -6, 0), Vector(232, 0, 0)), False)
sketch2.addGeometry(Part.LineSegment(Vector(232, 0, 0), Vector(222, 0, 0)), False)
sketch2.addConstraint(Sketcher.Constraint("Coincident", 0, 2, 1, 1))
sketch2.addConstraint(Sketcher.Constraint("Coincident", 1, 2, 2, 1))
sketch2.addConstraint(Sketcher.Constraint("Coincident", 2, 2, 3, 1))
sketch2.addConstraint(Sketcher.Constraint("Coincident", 3, 2, 0, 1))
sketch2.addConstraint(Sketcher.Constraint("Coincident", 4, 2, 5, 1))
sketch2.addConstraint(Sketcher.Constraint("Coincident", 5, 2, 6, 1))
sketch2.addConstraint(Sketcher.Constraint("Coincident", 6, 2, 7, 1))
sketch2.addConstraint(Sketcher.Constraint("Coincident", 7, 2, 4, 1))
sketch2.addConstraint(Sketcher.Constraint("Vertical", 0))
sketch2.addConstraint(Sketcher.Constraint("Horizontal", 1))
sketch2.addConstraint(Sketcher.Constraint("Vertical", 2))
sketch2.addConstraint(Sketcher.Constraint("Horizontal", 3))
sketch2.addConstraint(Sketcher.Constraint("Vertical", 4))
sketch2.addConstraint(Sketcher.Constraint("Horizontal", 5))
sketch2.addConstraint(Sketcher.Constraint("Vertical", 6))
sketch2.addConstraint(Sketcher.Constraint("Horizontal", 7))
sketch2.addConstraint(Sketcher.Constraint("PointOnObject", 2, 2, -1))
sketch2.addConstraint(Sketcher.Constraint("PointOnObject", 6, 2, -1))
sketch2.addConstraint(Sketcher.Constraint("Horizontal", 1, 2, 4, 2))
sketch2.addConstraint(Sketcher.Constraint("Equal", 3, 5))
sketch2.addConstraint(Sketcher.Constraint("DistanceX", 1, 1, 1, 2, Q("0.4 in")))
sketch2.addConstraint(Sketcher.Constraint("DistanceX", 0, 2, 4, 2, Q("6 in")))
sketch2.addConstraint(Sketcher.Constraint("DistanceY", 0, 2, 0, 1, Q("0.25 in")))
sketch2.addConstraint(Sketcher.Constraint("DistanceX", -1, 1, 0, 2, Q("2.75 in")))
pad2 = body.newObject("PartDesign::Pad", "Pad001")
pad2.Profile = sketch2
pad2.Length = Q("0.25 in")
pad2.Reversed = True

doc.recompute()
